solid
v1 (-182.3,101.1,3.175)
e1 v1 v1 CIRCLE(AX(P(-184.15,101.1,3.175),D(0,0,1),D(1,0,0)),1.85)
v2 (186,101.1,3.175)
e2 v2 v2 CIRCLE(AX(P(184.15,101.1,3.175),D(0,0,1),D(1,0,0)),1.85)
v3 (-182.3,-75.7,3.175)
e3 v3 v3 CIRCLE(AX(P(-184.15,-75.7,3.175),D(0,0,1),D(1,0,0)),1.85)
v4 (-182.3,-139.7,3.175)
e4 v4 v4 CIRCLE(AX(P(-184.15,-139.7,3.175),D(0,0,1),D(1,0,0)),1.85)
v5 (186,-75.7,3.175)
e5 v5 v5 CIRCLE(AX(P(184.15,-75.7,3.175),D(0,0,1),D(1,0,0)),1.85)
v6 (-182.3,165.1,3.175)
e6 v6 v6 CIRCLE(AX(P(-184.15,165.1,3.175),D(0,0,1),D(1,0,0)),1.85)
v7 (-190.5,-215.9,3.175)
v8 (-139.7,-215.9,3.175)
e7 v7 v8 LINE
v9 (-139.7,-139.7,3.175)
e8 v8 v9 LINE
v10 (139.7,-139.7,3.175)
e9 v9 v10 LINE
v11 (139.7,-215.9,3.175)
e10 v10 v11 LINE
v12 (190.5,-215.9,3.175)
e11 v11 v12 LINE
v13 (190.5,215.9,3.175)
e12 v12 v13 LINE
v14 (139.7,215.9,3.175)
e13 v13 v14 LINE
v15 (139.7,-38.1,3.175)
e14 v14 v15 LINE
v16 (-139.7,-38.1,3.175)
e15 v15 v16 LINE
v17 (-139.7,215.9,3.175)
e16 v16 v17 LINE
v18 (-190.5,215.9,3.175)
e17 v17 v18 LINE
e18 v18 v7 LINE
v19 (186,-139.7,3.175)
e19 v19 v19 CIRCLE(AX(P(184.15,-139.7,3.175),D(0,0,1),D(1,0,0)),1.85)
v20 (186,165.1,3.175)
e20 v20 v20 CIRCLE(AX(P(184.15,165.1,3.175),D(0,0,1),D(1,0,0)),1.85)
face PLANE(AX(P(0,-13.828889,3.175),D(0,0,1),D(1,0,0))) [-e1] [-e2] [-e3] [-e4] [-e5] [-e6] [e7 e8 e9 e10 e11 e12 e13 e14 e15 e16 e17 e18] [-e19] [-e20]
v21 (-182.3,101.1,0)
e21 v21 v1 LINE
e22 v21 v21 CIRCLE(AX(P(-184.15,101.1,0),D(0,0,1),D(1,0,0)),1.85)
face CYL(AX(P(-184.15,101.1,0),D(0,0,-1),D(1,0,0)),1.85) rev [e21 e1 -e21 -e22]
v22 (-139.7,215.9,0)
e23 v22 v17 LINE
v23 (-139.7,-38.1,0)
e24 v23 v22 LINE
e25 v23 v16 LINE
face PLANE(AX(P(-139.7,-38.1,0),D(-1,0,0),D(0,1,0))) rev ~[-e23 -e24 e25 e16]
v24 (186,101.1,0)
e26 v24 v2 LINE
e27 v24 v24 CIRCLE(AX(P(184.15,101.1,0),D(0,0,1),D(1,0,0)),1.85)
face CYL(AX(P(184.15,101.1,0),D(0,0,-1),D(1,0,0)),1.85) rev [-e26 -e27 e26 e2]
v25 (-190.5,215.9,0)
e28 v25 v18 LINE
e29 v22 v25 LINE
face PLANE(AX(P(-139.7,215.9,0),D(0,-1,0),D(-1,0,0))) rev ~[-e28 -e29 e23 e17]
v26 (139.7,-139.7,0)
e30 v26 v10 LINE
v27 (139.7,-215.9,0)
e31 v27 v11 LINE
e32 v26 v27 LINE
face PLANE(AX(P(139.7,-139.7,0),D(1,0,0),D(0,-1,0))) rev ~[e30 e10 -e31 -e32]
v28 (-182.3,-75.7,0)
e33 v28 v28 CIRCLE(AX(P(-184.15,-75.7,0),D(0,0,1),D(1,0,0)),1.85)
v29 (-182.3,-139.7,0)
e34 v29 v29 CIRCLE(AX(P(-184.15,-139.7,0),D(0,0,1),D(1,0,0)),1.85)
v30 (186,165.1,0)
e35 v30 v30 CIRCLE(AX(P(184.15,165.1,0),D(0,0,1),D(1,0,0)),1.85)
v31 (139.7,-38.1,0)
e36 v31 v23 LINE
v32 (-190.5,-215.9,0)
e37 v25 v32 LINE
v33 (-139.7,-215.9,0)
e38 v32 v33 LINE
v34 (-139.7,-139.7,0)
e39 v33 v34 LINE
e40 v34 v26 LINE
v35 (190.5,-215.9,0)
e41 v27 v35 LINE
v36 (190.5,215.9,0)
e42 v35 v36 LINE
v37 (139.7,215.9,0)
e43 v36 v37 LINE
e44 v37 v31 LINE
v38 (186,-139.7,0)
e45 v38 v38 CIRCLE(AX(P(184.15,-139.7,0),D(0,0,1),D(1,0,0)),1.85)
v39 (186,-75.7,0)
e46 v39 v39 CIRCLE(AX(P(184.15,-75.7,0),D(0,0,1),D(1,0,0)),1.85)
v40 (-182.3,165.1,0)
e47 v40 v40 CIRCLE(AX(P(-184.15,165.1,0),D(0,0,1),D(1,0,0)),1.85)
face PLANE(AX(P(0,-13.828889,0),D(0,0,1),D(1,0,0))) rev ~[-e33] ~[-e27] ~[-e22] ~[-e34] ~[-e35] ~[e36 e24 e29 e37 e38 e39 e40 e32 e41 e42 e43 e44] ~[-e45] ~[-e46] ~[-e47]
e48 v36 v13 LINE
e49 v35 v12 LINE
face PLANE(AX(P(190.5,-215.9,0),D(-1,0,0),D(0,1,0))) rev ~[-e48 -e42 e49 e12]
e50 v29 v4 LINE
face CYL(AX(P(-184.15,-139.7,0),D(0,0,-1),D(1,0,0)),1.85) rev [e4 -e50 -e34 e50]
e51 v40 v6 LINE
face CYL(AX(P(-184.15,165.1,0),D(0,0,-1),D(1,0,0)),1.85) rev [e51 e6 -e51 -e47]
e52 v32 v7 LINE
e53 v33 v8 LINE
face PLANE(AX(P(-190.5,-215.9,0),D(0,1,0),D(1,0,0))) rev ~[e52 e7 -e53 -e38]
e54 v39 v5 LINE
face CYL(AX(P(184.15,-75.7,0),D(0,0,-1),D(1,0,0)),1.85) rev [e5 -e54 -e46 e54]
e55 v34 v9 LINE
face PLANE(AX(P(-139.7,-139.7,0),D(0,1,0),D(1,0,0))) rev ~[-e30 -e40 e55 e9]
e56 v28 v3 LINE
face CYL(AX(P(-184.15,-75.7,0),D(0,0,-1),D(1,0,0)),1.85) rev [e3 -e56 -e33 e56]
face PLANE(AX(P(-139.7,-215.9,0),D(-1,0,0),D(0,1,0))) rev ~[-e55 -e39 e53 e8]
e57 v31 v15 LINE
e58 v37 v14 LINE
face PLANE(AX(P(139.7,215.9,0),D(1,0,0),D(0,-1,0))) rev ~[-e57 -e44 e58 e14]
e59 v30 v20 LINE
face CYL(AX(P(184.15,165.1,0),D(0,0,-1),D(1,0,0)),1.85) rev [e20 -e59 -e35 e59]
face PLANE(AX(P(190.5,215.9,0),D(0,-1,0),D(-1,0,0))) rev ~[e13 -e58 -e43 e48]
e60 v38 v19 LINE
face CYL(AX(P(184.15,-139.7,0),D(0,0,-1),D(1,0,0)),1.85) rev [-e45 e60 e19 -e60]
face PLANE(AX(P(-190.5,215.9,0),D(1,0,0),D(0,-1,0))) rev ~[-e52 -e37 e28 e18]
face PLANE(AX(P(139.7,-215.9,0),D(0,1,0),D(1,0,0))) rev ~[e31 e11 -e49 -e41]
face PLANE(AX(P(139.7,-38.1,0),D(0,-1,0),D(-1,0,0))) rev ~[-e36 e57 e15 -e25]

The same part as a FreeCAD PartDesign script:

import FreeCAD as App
import Part
import Sketcher
from FreeCAD import Vector
Q = App.Units.Quantity

doc = App.newDocument("Part")
body = doc.addObject("PartDesign::Body", "Body")

# Sketch on XY plane
sketch1 = doc.addObject("Sketcher::SketchObject", "Sketch")
body.addObject(sketch1)
sketch1.AttachmentSupport = (doc.XY_Plane, [""])
sketch1.MapMode = "FlatFace"
sketch1.addGeometry([
    Part.LineSegment(Vector(190.5, -215.9, 0), Vector(190.5, 215.9, 0)),  # 0
    Part.LineSegment(Vector(190.5, 215.9, 0), Vector(139.7, 215.9, 0)),  # 1
    Part.LineSegment(Vector(139.7, 215.9, 0), Vector(139.7, -38.1, 0)),  # 2
    Part.LineSegment(Vector(139.7, -38.1, 0), Vector(-139.7, -38.1, 0)),  # 3
    Part.LineSegment(Vector(-139.7, -38.1, 0), Vector(-139.7, 215.9, 0)),  # 4
    Part.LineSegment(Vector(-139.7, 215.9, 0), Vector(-190.5, 215.9, 0)),  # 5
    Part.LineSegment(Vector(-190.5, 215.9, 0), Vector(-190.5, -215.9, 0)),  # 6
    Part.LineSegment(Vector(-190.5, -215.9, 0), Vector(-139.7, -215.9, 0)),  # 7
    Part.LineSegment(Vector(-139.7, -215.9, 0), Vector(-139.7, -139.7, 0)),  # 8
    Part.LineSegment(Vector(-139.7, -139.7, 0), Vector(139.7, -139.7, 0)),  # 9
    Part.LineSegment(Vector(139.7, -139.7, 0), Vector(139.7, -215.9, 0)),  # 10
    Part.LineSegment(Vector(139.7, -215.9, 0), Vector(190.5, -215.9, 0)),  # 11
    Part.Circle(Vector(-184.2, -139.7, 0), Vector(0, 0, 1), 1.9),  # 12
    Part.Circle(Vector(-184.2, -75.7, 0), Vector(0, 0, 1), 1.9),  # 13
    Part.Circle(Vector(184.2, -139.7, 0), Vector(0, 0, 1), 1.9),  # 14
    Part.Circle(Vector(184.2, -75.7, 0), Vector(0, 0, 1), 1.9),  # 15
    Part.Circle(Vector(-184.2, 101.1, 0), Vector(0, 0, 1), 1.9),  # 16
    Part.Circle(Vector(-184.2, 165.1, 0), Vector(0, 0, 1), 1.9),  # 17
    Part.Circle(Vector(184.2, 101.1, 0), Vector(0, 0, 1), 1.9),  # 18
    Part.Circle(Vector(184.2, 165.1, 0), Vector(0, 0, 1), 1.9),  # 19
], False)
sketch1.addConstraint([
    Sketcher.Constraint("Coincident", 0, 2, 1, 1),
    Sketcher.Constraint("Coincident", 1, 2, 2, 1),
    Sketcher.Constraint("Coincident", 2, 2, 3, 1),
    Sketcher.Constraint("Coincident", 3, 2, 4, 1),
    Sketcher.Constraint("Coincident", 4, 2, 5, 1),
    Sketcher.Constraint("Coincident", 5, 2, 6, 1),
    Sketcher.Constraint("Coincident", 6, 2, 7, 1),
    Sketcher.Constraint("Coincident", 7, 2, 8, 1),
    Sketcher.Constraint("Coincident", 8, 2, 9, 1),
    Sketcher.Constraint("Coincident", 9, 2, 10, 1),
    Sketcher.Constraint("Coincident", 10, 2, 11, 1),
    Sketcher.Constraint("Coincident", 11, 2, 0, 1),
    Sketcher.Constraint("Vertical", 0),
    Sketcher.Constraint("Horizontal", 1),
    Sketcher.Constraint("Vertical", 2),
    Sketcher.Constraint("Horizontal", 3),
    Sketcher.Constraint("Vertical", 4),
    Sketcher.Constraint("Horizontal", 5),
    Sketcher.Constraint("Vertical", 6),
    Sketcher.Constraint("Horizontal", 7),
    Sketcher.Constraint("Vertical", 8),
    Sketcher.Constraint("Horizontal", 9),
    Sketcher.Constraint("Vertical", 10),
    Sketcher.Constraint("Horizontal", 11),
    Sketcher.Constraint("Equal", 12, 13),
    Sketcher.Constraint("Equal", 13, 14),
    Sketcher.Constraint("Equal", 14, 15),
    Sketcher.Constraint("Equal", 15, 16),
    Sketcher.Constraint("Equal", 16, 17),
    Sketcher.Constraint("Equal", 17, 18),
    Sketcher.Constraint("Equal", 18, 19),
    Sketcher.Constraint("Symmetric", 0, 2, 6, 2, -1, 1),
    Sketcher.Constraint("Symmetric", 4, 2, 10, 2, -1, 1),
    Sketcher.Constraint("Symmetric", 12, 3, 14, 3, -2),
    Sketcher.Constraint("Symmetric", 13, 3, 15, 3, -2),
    Sketcher.Constraint("Symmetric", 16, 3, 18, 3, -2),
    Sketcher.Constraint("Symmetric", 17, 3, 19, 3, -2),
    Sketcher.Constraint("Symmetric", 1, 2, 4, 2, -2),
    Sketcher.Constraint("Horizontal", 14, 3, 8, 2),
    Sketcher.Constraint("Vertical", 12, 3, 13, 3),
    Sketcher.Constraint("Vertical", 13, 3, 16, 3),
    Sketcher.Constraint("Vertical", 16, 3, 17, 3),
    Sketcher.Constraint("Vertical", 4, 2, 7, 2),
    Sketcher.Constraint("DistanceX", 1, 2, 1, 1, Q("2 in")),
    Sketcher.Constraint("DistanceX", 3, 2, 3, 1, Q("11 in")),
    Sketcher.Constraint("DistanceY", 0, 1, 0, 2, Q("17 in")),
    Sketcher.Constraint("DistanceY", 2, 2, 2, 1, Q("10 in")),
    Sketcher.Constraint("DistanceY", 8, 1, 8, 2, Q("3 in")),
    Sketcher.Constraint("DistanceY", 12, 3, 17, 3, Q("12 in")),
    Sketcher.Constraint("DistanceX", 12, 3, 14, 3, Q("14.5 in")),
    Sketcher.Constraint("Diameter", 12, Q("3.7 mm")),
    Sketcher.Constraint("DistanceY", 13, 3, -1, 1, Q("75.7 mm")),
    Sketcher.Constraint("DistanceY", -1, 1, 16, 3, Q("101.1 mm")),
])
pad1 = doc.addObject("PartDesign::Pad", "Pad")
body.addObject(pad1)
pad1.Profile = sketch1
pad1.Length = Q("0.125 in")

doc.recompute()
